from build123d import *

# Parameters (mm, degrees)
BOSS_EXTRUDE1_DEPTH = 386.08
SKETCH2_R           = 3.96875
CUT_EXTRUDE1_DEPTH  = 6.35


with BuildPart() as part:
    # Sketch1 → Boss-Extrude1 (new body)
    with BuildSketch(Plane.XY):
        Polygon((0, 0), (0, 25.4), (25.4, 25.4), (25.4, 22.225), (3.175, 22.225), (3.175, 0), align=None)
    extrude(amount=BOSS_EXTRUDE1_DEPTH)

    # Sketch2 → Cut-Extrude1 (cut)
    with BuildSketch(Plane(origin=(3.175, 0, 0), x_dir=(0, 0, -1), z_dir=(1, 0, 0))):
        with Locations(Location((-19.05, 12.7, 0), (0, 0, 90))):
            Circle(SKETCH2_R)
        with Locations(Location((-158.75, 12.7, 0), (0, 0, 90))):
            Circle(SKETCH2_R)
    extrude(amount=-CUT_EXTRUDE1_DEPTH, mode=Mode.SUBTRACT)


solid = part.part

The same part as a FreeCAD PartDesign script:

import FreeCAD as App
import Part
import Sketcher

V = App.Vector
Q = App.Units.Quantity


def add_polygon(sketch, points):
    """Adds a closed chain of lines whose ends are joined by coincident constraints."""
    first, n = sketch.GeometryCount, len(points)
    for a, b in zip(points, points[1:] + points[:1]):
        sketch.addGeometry(Part.LineSegment(App.Vector(*a, 0), App.Vector(*b, 0)), False)
    for i in range(n):
        sketch.addConstraint(Sketcher.Constraint("Coincident", first + i, 2, first + (i + 1) % n, 1))

doc = App.newDocument("Part")
body = doc.addObject("PartDesign::Body", "Body")

# Sketch on XY plane
sketch1 = body.newObject("Sketcher::SketchObject", "Sketch")
sketch1.AttachmentSupport = (doc.getObject("XY_Plane"), [""])
sketch1.MapMode = "FlatFace"
add_polygon(sketch1, [(0, 25.4), (0, 0), (3.175, 0), (3.175, 22.225), (25.4, 22.225), (25.4, 25.4)])  # lines 0-5
sketch1.addConstraint([
    Sketcher.Constraint("Vertical", 0),
    Sketcher.Constraint("Horizontal", 1),
    Sketcher.Constraint("Vertical", 2),
    Sketcher.Constraint("Horizontal", 3),
    Sketcher.Constraint("Vertical", 4),
    Sketcher.Constraint("Horizontal", 5),
    Sketcher.Constraint("Coincident", 0, 2, -1, 1),
    Sketcher.Constraint("Equal", 5, 0),
    Sketcher.Constraint("Equal", 3, 2),
    Sketcher.Constraint("DistanceX", 5, 2, 5, 1, Q("1 in")),
    Sketcher.Constraint("DistanceX", 1, 1, 1, 2, Q("0.125 in")),
])
pad1 = body.newObject("PartDesign::Pad", "Pad")
pad1.Profile = sketch1
pad1.Length = Q("15.2 in")

# Sketch on YZ plane
sketch2 = body.newObject("Sketcher::SketchObject", "Sketch001")
sketch2.AttachmentSupport = (doc.getObject("YZ_Plane"), [""])
sketch2.MapMode = "FlatFace"
sketch2.AttachmentOffset = App.Placement(V(0, 0, 0.125 * 25.4), App.Rotation())
sketch2.addGeometry([
    Part.Circle(V(12.7, 19.05, 0), V(0, 0, 1), 3.96875),
    Part.Circle(V(12.7, 158.75, 0), V(0, 0, 1), 3.96875),
], False)
sketch2.addConstraint([
    Sketcher.Constraint("Equal", 0, 1),
    Sketcher.Constraint("Vertical", 0, 3, 1, 3),
    Sketcher.Constraint("Diameter", 0, Q("0.3125 in")),
    Sketcher.Constraint("DistanceX", -1, 1, 0, 3, Q("0.5 in")),
    Sketcher.Constraint("DistanceY", 0, 3, 1, 3, Q("5.5 in")),
    Sketcher.Constraint("DistanceY", -1, 1, 0, 3, Q("0.75 in")),
])
pocket1 = body.newObject("PartDesign::Pocket", "Pocket")
pocket1.Profile = sketch2
pocket1.Length = Q("0.25 in")

doc.recompute()
